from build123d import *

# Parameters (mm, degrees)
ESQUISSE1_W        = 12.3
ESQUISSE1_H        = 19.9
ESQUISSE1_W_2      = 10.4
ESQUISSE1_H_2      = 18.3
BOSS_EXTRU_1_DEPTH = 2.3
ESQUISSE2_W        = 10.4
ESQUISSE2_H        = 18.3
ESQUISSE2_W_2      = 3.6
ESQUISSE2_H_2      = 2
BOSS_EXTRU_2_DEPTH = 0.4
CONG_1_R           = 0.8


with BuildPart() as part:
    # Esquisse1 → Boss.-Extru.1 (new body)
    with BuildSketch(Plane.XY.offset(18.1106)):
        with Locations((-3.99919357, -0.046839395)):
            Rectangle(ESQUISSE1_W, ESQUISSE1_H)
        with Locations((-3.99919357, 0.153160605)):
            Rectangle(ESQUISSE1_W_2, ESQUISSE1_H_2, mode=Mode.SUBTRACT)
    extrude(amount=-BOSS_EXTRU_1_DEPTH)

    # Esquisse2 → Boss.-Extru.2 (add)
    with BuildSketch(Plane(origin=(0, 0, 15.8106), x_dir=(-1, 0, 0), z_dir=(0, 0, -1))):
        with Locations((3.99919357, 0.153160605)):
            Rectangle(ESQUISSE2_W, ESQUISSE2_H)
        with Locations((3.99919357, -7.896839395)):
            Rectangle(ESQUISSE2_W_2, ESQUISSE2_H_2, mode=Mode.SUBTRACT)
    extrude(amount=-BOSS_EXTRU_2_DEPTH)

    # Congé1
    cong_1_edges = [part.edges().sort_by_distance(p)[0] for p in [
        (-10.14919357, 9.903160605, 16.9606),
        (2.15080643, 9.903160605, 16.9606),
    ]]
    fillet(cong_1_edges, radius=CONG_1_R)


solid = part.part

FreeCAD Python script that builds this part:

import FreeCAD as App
import Part
import Sketcher

V = App.Vector
Q = App.Units.Quantity


def edges_at(feature, points):
    """Names of the edges that pass closest to the given points."""
    edges = feature.Shape.Edges
    near = lambda p: min(range(len(edges)), key=lambda i: edges[i].distToShape(Part.Vertex(*p))[0])
    return sorted({f"Edge{near(p) + 1}" for p in points})


def add_polygon(sketch, points):
    """Adds a closed chain of lines whose ends are joined by coincident constraints."""
    first, n = sketch.GeometryCount, len(points)
    for a, b in zip(points, points[1:] + points[:1]):
        sketch.addGeometry(Part.LineSegment(App.Vector(*a, 0), App.Vector(*b, 0)), False)
    for i in range(n):
        sketch.addConstraint(Sketcher.Constraint("Coincident", first + i, 2, first + (i + 1) % n, 1))

doc = App.newDocument("Part")
params = doc.addObject("Spreadsheet::Sheet", "Params")
for row, (alias, value) in enumerate([
    ("sketch1_width", "12.3 mm"),
    ("sketch1_width2", "10.4 mm"),
    ("sketch1_height", "19.9 mm"),
    ("sketch1_height2", "18.3 mm"),
    ("pad1_length", "2.3 mm"),
    ("sketch2_height", "2 mm"),
    ("sketch2_width", "10.4 mm"),
    ("sketch2_width2", "3.6 mm"),
    ("sketch2_height2", "18.3 mm"),
    ("pad2_length", "0.4 mm"),
    ("fillet_radius", "0.8 mm"),
], start=1):
    params.set(f"A{row}", alias)
    params.set(f"B{row}", "=" + value)
    params.setAlias(f"B{row}", alias)

body = doc.addObject("PartDesign::Body", "Body")

# Sketch on XY plane
sketch1 = doc.addObject("Sketcher::SketchObject", "Sketch")
body.addObject(sketch1)
sketch1.AttachmentSupport = (doc.XY_Plane, [""])
sketch1.MapMode = "FlatFace"
sketch1.AttachmentOffset = App.Placement(V(0, 0, 18.1106), App.Rotation())
add_polygon(sketch1, [(-10, 10), (-10, -10), (2, -10), (2, 10)])  # lines 0-3
add_polygon(sketch1, [(1, -9), (-9, -9), (-9, 9), (1, 9)])  # lines 4-7
sketch1.addConstraint([
    Sketcher.Constraint("Vertical", 0),
    Sketcher.Constraint("Horizontal", 1),
    Sketcher.Constraint("Vertical", 2),
    Sketcher.Constraint("Horizontal", 3),
    Sketcher.Constraint("Horizontal", 4),
    Sketcher.Constraint("Vertical", 5),
    Sketcher.Constraint("Horizontal", 6),
    Sketcher.Constraint("Vertical", 7),
    Sketcher.Constraint("DistanceX", 1, 1, 1, 2, Q("12.3 mm")),
    Sketcher.Constraint("DistanceX", 4, 2, 4, 1, Q("10.4 mm")),
    Sketcher.Constraint("DistanceY", 0, 2, 0, 1, Q("19.9 mm")),
    Sketcher.Constraint("DistanceY", 5, 1, 5, 2, Q("18.3 mm")),
    Sketcher.Constraint("DistanceY", 0, 2, 4, 2, Q("1 mm")),
    Sketcher.Constraint("DistanceX", 0, 2, 4, 2, Q("0.95 mm")),
    Sketcher.Constraint("DistanceY", 0, 2, -1, 1, Q("9.996839 mm")),
    Sketcher.Constraint("DistanceX", 0, 2, -1, 1, Q("10.149194 mm")),
])
sketch1.setExpression("Constraints[16]", "Params.sketch1_width")
sketch1.setExpression("Constraints[17]", "Params.sketch1_width2")
sketch1.setExpression("Constraints[18]", "Params.sketch1_height")
sketch1.setExpression("Constraints[19]", "Params.sketch1_height2")
pad1 = doc.addObject("PartDesign::Pad", "Pad")
body.addObject(pad1)
pad1.Profile = sketch1
pad1.setExpression("Length", "Params.pad1_length")
pad1.Reversed = True

# Sketch on XY plane
sketch2 = doc.addObject("Sketcher::SketchObject", "Sketch001")
body.addObject(sketch2)
sketch2.AttachmentSupport = (doc.XY_Plane, [""])
sketch2.MapMode = "FlatFace"
sketch2.AttachmentOffset = App.Placement(V(0, 0, 15.8106), App.Rotation())
add_polygon(sketch2, [(1.2, 9.3), (1.2, -9), (-9.2, -9), (-9.2, 9.3)])  # lines 0-3
add_polygon(sketch2, [(-5.8, -8.9), (-2.2, -8.9), (-2.2, -6.9), (-5.8, -6.9)])  # lines 4-7
sketch2.addConstraint([
    Sketcher.Constraint("Vertical", 0),
    Sketcher.Constraint("Horizontal", 1),
    Sketcher.Constraint("Vertical", 2),
    Sketcher.Constraint("Horizontal", 3),
    Sketcher.Constraint("Horizontal", 4),
    Sketcher.Constraint("Vertical", 5),
    Sketcher.Constraint("Horizontal", 6),
    Sketcher.Constraint("Vertical", 7),
    Sketcher.Constraint("DistanceY", 5, 1, 5, 2, Q("2 mm")),
    Sketcher.Constraint("DistanceX", 1, 2, 1, 1, Q("10.4 mm")),
    Sketcher.Constraint("DistanceX", 4, 1, 4, 2, Q("3.6 mm")),
    Sketcher.Constraint("DistanceY", 0, 2, 0, 1, Q("18.3 mm")),
    Sketcher.Constraint("DistanceX", 1, 2, 4, 2, Q("7 mm")),
    Sketcher.Constraint("DistanceY", 0, 2, 4, 2, Q("0.1 mm")),
    Sketcher.Constraint("DistanceY", 0, 2, -1, 1, Q("8.996839 mm")),
    Sketcher.Constraint("DistanceX", -1, 1, 0, 2, Q("1.200806 mm")),
])
sketch2.setExpression("Constraints[16]", "Params.sketch2_height")
sketch2.setExpression("Constraints[17]", "Params.sketch2_width")
sketch2.setExpression("Constraints[18]", "Params.sketch2_width2")
sketch2.setExpression("Constraints[19]", "Params.sketch2_height2")
pad2 = doc.addObject("PartDesign::Pad", "Pad001")
body.addObject(pad2)
pad2.Profile = sketch2
pad2.setExpression("Length", "Params.pad2_length")
doc.recompute()

fillet = doc.addObject("PartDesign::Fillet", "Fillet")
body.addObject(fillet)
fillet.Base = (pad2, edges_at(pad2, [(-10.149, 9.903, 16.961), (2.151, 9.903, 16.961)]))
fillet.setExpression("Radius", "Params.fillet_radius")

doc.recompute()
